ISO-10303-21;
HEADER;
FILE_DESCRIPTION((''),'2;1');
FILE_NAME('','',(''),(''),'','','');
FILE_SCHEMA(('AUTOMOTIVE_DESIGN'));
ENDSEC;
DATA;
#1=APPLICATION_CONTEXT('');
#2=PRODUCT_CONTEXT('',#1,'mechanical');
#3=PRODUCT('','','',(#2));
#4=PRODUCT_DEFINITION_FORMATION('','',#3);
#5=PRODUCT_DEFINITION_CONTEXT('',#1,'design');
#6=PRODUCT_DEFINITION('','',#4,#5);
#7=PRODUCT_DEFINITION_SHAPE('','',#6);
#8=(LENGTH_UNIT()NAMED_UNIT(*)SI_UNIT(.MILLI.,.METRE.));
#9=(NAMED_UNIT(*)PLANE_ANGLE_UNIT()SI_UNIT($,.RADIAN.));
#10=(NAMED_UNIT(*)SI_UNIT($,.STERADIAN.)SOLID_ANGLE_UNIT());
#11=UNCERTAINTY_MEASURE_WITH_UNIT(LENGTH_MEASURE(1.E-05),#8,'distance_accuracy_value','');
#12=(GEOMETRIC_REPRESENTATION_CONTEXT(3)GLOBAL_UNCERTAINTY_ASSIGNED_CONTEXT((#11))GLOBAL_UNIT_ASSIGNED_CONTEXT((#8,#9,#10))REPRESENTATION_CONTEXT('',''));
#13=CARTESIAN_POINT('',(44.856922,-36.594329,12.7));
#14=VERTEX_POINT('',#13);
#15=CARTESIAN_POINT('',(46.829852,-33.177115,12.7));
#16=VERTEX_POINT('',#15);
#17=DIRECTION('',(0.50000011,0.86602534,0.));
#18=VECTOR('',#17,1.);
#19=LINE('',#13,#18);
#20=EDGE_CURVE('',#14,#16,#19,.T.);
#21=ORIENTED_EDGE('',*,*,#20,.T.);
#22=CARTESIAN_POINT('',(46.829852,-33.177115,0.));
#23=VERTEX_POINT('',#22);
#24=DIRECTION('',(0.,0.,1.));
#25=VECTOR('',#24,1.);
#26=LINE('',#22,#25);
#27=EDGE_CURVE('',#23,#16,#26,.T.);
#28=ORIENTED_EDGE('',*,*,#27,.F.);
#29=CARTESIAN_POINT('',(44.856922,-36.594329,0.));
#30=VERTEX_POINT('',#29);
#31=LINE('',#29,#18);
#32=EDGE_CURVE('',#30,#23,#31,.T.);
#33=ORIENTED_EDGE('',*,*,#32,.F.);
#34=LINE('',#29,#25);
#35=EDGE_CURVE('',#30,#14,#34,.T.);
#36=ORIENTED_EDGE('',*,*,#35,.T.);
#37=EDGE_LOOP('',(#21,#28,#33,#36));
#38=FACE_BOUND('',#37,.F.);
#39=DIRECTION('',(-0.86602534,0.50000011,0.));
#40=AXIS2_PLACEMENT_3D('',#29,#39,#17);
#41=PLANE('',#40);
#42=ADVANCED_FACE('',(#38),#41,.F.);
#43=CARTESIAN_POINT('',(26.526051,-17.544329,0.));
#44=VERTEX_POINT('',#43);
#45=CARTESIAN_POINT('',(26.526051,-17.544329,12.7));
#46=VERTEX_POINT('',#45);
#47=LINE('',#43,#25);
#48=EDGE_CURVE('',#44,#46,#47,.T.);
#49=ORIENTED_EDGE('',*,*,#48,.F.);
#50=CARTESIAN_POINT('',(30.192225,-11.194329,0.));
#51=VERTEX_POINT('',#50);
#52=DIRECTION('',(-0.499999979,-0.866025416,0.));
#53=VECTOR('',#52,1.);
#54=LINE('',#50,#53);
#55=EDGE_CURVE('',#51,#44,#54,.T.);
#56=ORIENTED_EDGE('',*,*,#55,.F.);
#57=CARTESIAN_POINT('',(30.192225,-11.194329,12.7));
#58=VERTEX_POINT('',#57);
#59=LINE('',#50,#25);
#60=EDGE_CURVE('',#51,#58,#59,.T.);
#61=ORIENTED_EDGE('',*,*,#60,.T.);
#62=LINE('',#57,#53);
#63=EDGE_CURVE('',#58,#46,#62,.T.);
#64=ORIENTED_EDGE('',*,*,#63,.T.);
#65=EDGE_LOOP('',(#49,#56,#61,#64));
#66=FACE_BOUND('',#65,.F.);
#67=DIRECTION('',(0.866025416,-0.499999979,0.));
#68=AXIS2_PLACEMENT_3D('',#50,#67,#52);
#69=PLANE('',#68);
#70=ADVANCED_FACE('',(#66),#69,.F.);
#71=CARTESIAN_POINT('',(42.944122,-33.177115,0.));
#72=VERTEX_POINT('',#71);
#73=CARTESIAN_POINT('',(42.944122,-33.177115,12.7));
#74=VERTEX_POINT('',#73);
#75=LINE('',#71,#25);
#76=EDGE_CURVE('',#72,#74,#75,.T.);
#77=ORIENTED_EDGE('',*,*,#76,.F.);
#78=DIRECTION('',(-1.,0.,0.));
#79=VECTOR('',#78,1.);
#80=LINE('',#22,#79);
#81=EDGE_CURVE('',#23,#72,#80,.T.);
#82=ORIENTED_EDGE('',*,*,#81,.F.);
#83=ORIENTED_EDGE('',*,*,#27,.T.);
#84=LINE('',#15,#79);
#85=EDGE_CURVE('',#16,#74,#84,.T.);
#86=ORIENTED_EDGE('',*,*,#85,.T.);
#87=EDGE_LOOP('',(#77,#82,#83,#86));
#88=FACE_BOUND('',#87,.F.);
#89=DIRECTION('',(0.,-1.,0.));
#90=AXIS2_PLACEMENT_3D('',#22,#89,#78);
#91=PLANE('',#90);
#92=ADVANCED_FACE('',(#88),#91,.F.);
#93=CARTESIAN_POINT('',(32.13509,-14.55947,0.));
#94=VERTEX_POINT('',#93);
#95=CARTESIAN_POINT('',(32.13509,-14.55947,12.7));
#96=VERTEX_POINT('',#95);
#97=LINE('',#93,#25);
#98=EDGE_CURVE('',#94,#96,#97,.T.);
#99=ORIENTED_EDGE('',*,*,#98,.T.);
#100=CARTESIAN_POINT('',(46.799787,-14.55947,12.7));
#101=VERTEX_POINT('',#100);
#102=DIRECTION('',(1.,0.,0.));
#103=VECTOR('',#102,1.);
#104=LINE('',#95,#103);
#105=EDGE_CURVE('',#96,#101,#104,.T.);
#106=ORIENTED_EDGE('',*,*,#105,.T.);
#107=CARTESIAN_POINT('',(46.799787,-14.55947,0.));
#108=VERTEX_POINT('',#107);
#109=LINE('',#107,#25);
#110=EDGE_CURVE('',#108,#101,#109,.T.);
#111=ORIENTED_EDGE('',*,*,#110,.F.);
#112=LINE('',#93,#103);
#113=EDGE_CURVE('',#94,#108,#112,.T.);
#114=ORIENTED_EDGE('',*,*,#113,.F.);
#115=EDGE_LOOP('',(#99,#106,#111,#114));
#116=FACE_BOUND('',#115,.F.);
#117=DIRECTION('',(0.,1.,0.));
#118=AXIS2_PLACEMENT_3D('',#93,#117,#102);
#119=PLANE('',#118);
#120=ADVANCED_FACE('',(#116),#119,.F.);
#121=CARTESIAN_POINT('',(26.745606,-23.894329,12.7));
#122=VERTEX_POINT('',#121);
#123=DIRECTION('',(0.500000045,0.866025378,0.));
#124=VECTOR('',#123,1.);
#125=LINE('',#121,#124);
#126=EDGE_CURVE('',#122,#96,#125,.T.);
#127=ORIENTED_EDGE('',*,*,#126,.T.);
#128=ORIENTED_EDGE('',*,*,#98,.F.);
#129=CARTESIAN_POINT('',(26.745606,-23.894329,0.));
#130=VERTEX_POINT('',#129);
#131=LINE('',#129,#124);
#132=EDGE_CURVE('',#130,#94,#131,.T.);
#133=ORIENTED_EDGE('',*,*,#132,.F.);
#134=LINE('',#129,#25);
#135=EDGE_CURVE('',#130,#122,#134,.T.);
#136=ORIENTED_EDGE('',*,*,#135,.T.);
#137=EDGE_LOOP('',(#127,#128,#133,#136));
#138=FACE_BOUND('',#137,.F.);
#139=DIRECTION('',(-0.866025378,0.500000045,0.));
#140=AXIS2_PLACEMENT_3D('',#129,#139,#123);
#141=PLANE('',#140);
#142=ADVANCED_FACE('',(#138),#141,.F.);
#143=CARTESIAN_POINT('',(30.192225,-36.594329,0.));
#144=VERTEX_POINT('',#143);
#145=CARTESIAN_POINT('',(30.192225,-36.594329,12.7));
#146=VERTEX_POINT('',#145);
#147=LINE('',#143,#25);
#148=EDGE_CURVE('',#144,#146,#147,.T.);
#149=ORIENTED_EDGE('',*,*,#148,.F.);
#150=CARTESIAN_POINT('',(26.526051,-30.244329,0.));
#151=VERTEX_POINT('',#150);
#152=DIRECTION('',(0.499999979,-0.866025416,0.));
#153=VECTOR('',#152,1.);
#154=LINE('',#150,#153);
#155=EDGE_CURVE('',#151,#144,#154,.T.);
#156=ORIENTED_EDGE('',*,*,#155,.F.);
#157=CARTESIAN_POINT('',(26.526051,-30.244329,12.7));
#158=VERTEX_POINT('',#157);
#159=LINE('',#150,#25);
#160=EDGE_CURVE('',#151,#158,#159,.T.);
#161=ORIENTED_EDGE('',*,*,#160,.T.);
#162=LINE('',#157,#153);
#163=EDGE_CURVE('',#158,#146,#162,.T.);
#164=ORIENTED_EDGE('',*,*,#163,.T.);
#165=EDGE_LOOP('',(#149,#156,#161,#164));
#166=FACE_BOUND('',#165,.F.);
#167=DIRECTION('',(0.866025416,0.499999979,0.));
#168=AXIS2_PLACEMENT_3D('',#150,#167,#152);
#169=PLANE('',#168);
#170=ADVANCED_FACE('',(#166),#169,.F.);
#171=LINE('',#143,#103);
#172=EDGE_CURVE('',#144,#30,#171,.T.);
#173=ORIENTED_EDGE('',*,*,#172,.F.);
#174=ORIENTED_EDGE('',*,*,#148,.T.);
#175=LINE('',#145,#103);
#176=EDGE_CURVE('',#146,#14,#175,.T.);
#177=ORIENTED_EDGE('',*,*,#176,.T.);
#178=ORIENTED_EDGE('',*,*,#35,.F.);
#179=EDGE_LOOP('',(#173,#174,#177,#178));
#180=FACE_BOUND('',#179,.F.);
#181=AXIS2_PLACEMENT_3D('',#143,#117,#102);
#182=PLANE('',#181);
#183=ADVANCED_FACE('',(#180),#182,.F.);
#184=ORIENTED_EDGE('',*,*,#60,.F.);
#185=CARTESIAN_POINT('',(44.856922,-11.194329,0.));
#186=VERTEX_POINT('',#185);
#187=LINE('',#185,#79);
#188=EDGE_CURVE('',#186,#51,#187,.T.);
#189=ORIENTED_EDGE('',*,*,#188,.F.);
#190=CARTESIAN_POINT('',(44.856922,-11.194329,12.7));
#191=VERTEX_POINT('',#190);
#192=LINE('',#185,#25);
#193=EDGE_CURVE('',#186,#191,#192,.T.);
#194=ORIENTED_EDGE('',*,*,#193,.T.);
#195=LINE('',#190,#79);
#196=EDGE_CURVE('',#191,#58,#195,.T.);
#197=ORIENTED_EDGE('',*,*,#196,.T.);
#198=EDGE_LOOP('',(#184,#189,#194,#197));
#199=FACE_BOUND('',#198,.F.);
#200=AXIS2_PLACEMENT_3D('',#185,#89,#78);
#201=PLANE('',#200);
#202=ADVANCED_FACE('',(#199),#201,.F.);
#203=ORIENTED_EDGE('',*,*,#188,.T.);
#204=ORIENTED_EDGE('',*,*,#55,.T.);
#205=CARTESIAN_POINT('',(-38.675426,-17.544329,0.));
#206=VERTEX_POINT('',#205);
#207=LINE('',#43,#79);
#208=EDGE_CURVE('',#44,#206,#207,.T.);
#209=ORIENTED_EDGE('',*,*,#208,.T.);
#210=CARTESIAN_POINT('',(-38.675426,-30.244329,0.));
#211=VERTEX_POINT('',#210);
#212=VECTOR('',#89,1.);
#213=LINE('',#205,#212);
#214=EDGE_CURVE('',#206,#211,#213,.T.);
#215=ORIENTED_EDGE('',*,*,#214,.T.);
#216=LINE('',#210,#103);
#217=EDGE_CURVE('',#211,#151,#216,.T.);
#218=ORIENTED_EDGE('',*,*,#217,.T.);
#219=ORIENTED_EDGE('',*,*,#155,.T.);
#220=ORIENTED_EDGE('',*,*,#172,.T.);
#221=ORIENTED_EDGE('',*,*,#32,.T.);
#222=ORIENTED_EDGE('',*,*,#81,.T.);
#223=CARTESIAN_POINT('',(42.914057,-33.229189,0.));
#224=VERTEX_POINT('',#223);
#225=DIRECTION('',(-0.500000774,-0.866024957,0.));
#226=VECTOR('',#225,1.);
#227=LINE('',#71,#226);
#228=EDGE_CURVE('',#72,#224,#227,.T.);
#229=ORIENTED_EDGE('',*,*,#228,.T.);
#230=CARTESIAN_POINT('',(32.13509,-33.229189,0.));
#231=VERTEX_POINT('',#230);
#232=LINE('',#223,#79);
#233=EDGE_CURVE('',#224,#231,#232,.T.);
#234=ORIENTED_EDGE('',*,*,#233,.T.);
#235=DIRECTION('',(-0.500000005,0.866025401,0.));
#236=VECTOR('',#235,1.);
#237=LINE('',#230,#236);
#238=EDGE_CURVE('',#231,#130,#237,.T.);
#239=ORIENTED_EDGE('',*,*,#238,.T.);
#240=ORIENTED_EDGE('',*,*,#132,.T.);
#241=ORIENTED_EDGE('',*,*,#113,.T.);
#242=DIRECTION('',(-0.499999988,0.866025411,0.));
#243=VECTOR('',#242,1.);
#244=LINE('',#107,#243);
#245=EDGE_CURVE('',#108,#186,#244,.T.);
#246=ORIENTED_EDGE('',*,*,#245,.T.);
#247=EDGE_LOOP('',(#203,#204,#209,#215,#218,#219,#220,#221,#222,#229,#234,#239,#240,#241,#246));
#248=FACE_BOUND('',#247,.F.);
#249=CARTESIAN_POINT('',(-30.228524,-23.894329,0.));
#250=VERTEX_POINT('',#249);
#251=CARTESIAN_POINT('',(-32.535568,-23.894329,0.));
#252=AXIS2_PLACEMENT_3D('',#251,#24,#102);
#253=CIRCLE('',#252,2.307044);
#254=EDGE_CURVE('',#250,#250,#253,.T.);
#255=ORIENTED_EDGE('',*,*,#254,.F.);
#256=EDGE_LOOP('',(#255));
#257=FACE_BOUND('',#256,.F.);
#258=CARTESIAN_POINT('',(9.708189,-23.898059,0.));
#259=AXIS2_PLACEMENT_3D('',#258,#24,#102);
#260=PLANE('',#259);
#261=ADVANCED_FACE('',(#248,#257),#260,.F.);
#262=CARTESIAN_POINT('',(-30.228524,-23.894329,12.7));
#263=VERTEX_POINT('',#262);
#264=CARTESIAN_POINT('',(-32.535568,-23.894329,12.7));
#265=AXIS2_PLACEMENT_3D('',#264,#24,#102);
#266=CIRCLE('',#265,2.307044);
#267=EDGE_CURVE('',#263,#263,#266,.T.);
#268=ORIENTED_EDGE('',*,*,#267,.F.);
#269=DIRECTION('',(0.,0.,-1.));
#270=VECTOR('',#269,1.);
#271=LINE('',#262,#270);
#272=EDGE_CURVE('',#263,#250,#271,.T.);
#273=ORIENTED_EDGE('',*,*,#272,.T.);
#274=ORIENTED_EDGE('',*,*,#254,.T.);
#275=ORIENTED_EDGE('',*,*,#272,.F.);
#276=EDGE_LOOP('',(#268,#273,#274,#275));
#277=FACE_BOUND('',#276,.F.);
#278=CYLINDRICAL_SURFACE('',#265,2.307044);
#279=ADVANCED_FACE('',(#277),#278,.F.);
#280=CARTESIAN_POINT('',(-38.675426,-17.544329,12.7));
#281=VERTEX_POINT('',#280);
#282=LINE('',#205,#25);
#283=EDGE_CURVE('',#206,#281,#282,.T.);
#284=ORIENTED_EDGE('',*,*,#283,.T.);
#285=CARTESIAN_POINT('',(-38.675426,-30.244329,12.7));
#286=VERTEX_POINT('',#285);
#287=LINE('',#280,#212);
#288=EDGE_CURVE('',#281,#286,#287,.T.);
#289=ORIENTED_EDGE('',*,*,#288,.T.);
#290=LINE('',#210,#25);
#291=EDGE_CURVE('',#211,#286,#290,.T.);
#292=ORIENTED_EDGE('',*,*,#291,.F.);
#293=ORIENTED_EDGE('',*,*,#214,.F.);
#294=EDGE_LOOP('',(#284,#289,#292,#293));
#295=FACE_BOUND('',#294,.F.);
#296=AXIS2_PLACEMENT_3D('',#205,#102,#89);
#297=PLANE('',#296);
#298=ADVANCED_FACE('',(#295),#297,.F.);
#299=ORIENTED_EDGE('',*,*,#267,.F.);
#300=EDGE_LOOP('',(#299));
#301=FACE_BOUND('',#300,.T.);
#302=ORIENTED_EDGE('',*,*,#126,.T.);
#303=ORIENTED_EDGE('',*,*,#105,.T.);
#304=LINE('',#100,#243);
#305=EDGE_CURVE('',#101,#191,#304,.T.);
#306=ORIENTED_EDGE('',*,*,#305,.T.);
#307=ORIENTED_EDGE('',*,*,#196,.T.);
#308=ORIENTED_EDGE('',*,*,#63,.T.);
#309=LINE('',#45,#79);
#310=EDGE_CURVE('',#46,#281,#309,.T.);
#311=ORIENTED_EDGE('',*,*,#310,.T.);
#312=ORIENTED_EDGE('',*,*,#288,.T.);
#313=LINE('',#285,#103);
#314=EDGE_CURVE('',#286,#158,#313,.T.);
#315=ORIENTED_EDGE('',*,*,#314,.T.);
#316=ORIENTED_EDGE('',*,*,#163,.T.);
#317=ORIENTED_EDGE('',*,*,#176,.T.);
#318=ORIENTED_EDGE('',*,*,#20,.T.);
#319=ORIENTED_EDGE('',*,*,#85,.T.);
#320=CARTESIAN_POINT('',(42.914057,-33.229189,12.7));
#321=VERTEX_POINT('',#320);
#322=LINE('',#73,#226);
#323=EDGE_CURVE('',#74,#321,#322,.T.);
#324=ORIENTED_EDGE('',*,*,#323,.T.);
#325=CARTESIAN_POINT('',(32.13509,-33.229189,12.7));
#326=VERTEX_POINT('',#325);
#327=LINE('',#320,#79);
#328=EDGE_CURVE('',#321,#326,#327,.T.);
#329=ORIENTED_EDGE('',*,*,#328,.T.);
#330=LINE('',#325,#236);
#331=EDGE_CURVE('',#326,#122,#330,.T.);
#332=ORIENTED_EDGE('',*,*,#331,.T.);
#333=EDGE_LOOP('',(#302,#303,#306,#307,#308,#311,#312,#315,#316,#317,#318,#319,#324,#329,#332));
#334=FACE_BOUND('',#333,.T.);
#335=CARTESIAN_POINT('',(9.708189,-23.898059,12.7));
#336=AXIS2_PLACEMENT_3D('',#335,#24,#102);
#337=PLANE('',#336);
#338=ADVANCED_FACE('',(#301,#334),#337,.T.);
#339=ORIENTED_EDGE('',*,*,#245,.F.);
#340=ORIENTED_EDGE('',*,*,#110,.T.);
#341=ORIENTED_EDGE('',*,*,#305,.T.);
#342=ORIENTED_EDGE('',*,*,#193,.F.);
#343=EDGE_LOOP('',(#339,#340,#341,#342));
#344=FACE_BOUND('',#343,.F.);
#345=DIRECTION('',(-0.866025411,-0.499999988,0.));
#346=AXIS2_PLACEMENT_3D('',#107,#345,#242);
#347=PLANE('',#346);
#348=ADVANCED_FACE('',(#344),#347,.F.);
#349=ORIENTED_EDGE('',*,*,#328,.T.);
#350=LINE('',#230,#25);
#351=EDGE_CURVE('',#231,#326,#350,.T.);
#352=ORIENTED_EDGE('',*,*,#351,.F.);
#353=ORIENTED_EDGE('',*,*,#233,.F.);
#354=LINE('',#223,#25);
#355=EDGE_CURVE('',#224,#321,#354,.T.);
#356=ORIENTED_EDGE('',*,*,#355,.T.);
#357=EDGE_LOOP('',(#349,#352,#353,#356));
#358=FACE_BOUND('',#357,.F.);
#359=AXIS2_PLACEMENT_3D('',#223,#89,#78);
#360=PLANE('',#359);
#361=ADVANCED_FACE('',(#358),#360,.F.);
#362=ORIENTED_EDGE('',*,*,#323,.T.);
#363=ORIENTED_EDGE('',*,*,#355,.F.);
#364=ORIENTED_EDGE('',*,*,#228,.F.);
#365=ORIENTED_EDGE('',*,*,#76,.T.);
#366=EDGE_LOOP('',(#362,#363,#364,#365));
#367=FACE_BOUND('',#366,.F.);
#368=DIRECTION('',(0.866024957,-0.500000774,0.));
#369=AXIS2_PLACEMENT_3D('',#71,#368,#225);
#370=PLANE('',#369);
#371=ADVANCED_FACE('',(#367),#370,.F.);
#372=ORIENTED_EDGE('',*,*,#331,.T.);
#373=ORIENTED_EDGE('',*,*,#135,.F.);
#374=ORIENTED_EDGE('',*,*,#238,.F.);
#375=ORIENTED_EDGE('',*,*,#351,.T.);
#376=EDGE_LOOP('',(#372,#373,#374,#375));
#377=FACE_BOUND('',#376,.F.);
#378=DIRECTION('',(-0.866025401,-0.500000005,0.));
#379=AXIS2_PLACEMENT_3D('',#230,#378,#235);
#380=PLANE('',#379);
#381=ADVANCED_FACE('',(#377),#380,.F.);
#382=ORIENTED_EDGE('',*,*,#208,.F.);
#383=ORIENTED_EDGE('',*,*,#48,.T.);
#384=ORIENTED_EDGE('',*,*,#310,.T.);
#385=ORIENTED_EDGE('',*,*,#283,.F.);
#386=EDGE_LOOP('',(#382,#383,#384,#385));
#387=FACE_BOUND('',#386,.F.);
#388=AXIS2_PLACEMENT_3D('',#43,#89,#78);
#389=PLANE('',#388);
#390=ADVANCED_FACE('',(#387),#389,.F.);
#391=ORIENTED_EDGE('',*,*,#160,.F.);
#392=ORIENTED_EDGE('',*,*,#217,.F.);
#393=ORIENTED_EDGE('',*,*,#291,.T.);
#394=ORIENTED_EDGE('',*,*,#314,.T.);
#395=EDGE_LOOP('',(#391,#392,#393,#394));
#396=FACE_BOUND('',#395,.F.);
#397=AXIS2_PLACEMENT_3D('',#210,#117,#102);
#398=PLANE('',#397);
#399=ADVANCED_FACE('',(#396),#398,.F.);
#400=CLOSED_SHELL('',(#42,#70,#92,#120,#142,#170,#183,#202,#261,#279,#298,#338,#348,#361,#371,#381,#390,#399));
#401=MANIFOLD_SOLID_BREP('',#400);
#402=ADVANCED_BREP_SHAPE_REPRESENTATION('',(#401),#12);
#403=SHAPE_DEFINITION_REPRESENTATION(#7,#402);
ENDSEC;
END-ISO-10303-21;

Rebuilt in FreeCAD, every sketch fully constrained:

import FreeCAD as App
import Part
import Sketcher
from FreeCAD import Vector
Q = App.Units.Quantity

doc = App.newDocument("Part")
body = doc.addObject("PartDesign::Body", "Body")

sketch1 = body.newObject("Sketcher::SketchObject", "Sketch")
sketch1.AttachmentSupport = (doc.getObject("XY_Plane"), [""])
sketch1.MapMode = "FlatFace"
sketch1.addGeometry([
    Part.LineSegment(Vector(26.526051, -17.544329, 0), Vector(-38.675426, -17.544329, 0)),
    Part.LineSegment(Vector(-38.675426, -17.544329, 0), Vector(-38.675426, -30.244329, 0)),
    Part.LineSegment(Vector(-38.675426, -30.244329, 0), Vector(26.526051, -30.244329, 0)),
    Part.LineSegment(Vector(26.526051, -30.244329, 0), Vector(30.192225, -36.594329, 0)),
    Part.LineSegment(Vector(30.192225, -36.594329, 0), Vector(44.856922, -36.594329, 0)),
    Part.LineSegment(Vector(44.856922, -36.594329, 0), Vector(46.829852, -33.177115, 0)),
    Part.LineSegment(Vector(46.829852, -33.177115, 0), Vector(42.944122, -33.177115, 0)),
    Part.LineSegment(Vector(42.944122, -33.177115, 0), Vector(42.914057, -33.229189, 0)),
    Part.LineSegment(Vector(42.914057, -33.229189, 0), Vector(32.13509, -33.229189, 0)),
    Part.LineSegment(Vector(32.13509, -33.229189, 0), Vector(26.745606, -23.894329, 0)),
    Part.LineSegment(Vector(26.745606, -23.894329, 0), Vector(32.13509, -14.55947, 0)),
    Part.LineSegment(Vector(32.13509, -14.55947, 0), Vector(46.799787, -14.55947, 0)),
    Part.LineSegment(Vector(46.799787, -14.55947, 0), Vector(44.856922, -11.194329, 0)),
    Part.LineSegment(Vector(44.856922, -11.194329, 0), Vector(30.192225, -11.194329, 0)),
    Part.LineSegment(Vector(30.192225, -11.194329, 0), Vector(26.526051, -17.544329, 0)),
], False)
sketch1.addConstraint([
    Sketcher.Constraint("Coincident", 0, 2, 1, 1),
    Sketcher.Constraint("Coincident", 1, 2, 2, 1),
    Sketcher.Constraint("Coincident", 2, 2, 3, 1),
    Sketcher.Constraint("Coincident", 3, 2, 4, 1),
    Sketcher.Constraint("Coincident", 4, 2, 5, 1),
    Sketcher.Constraint("Coincident", 5, 2, 6, 1),
    Sketcher.Constraint("Coincident", 6, 2, 7, 1),
    Sketcher.Constraint("Coincident", 7, 2, 8, 1),
    Sketcher.Constraint("Coincident", 8, 2, 9, 1),
    Sketcher.Constraint("Coincident", 9, 2, 10, 1),
    Sketcher.Constraint("Coincident", 10, 2, 11, 1),
    Sketcher.Constraint("Coincident", 11, 2, 12, 1),
    Sketcher.Constraint("Coincident", 12, 2, 13, 1),
    Sketcher.Constraint("Coincident", 13, 2, 14, 1),
    Sketcher.Constraint("Coincident", 14, 2, 0, 1),
    Sketcher.Constraint("Horizontal", 0),
    Sketcher.Constraint("Vertical", 1),
    Sketcher.Constraint("Horizontal", 2),
    Sketcher.Constraint("Horizontal", 4),
    Sketcher.Constraint("Horizontal", 6),
    Sketcher.Constraint("Horizontal", 8),
    Sketcher.Constraint("Horizontal", 11),
    Sketcher.Constraint("Horizontal", 13),
    Sketcher.Constraint("Parallel", 5, 7),
    Sketcher.Constraint("Parallel", 3, 9),
    Sketcher.Constraint("Parallel", 7, 10),
    Sketcher.Constraint("Parallel", 9, 12),
    Sketcher.Constraint("Parallel", 10, 14),
    Sketcher.Constraint("Vertical", 8, 2, 10, 2),
    Sketcher.Constraint("Vertical", 4, 2, 12, 2),
    Sketcher.Constraint("Vertical", 3, 2, 13, 2),
    Sketcher.Constraint("Vertical", 2, 2, 14, 2),
    Sketcher.Constraint("Equal", 4, 11),
    Sketcher.Constraint("Equal", 9, 10),
    Sketcher.Constraint("DistanceY", 1, 2, 1, 1, Q("0.5 in")),
    Sketcher.Constraint("Angle", 3, Q("-60.000001 deg")),
    Sketcher.Constraint("DistanceY", 3, 2, 9, 2, Q("0.5 in")),
    Sketcher.Constraint("DistanceY", 9, 2, 12, 2, Q("0.5 in")),
    Sketcher.Constraint("DistanceX", 6, 2, 6, 1, Q("3.88573 mm")),
    Sketcher.Constraint("DistanceX", 2, 2, 5, 2, Q("20.303801 mm")),
    Sketcher.Constraint("DistanceX", 6, 2, 4, 2, Q("1.9128 mm")),
    Sketcher.Constraint("Distance", 7, Q("0.06013 mm")),
    Sketcher.Constraint("DistanceX", 0, 2, 0, 1, Q("65.201477 mm")),
    Sketcher.Constraint("DistanceY", 0, 2, -1, 1, Q("17.544329 mm")),
    Sketcher.Constraint("DistanceX", -1, 1, 2, 2, Q("26.526051 mm")),
])
pad1 = body.newObject("PartDesign::Pad", "Pad")
pad1.Profile = sketch1
pad1.Length = Q("0.5 in")

sketch2 = body.newObject("Sketcher::SketchObject", "Sketch001")
sketch2.AttachmentSupport = (doc.getObject("XY_Plane"), [""])
sketch2.MapMode = "FlatFace"
sketch2.AttachmentOffset = App.Placement(Vector(0, 0, 0.5 * 25.4), App.Rotation())
sketch2.addGeometry(Part.Circle(Vector(-32.535568, -23.894329, 0), Vector(0, 0, 1), 2.307044), False)
sketch2.addConstraint([
    Sketcher.Constraint("Diameter", 0, Q("4.614088 mm")),
    Sketcher.Constraint("DistanceY", 0, 3, -1, 1, Q("23.894329 mm")),
    Sketcher.Constraint("DistanceX", 0, 3, -1, 1, Q("32.535568 mm")),
])
pocket1 = body.newObject("PartDesign::Pocket", "Pocket")
pocket1.Profile = sketch2
pocket1.Length = Q("1 in")

doc.recompute()
